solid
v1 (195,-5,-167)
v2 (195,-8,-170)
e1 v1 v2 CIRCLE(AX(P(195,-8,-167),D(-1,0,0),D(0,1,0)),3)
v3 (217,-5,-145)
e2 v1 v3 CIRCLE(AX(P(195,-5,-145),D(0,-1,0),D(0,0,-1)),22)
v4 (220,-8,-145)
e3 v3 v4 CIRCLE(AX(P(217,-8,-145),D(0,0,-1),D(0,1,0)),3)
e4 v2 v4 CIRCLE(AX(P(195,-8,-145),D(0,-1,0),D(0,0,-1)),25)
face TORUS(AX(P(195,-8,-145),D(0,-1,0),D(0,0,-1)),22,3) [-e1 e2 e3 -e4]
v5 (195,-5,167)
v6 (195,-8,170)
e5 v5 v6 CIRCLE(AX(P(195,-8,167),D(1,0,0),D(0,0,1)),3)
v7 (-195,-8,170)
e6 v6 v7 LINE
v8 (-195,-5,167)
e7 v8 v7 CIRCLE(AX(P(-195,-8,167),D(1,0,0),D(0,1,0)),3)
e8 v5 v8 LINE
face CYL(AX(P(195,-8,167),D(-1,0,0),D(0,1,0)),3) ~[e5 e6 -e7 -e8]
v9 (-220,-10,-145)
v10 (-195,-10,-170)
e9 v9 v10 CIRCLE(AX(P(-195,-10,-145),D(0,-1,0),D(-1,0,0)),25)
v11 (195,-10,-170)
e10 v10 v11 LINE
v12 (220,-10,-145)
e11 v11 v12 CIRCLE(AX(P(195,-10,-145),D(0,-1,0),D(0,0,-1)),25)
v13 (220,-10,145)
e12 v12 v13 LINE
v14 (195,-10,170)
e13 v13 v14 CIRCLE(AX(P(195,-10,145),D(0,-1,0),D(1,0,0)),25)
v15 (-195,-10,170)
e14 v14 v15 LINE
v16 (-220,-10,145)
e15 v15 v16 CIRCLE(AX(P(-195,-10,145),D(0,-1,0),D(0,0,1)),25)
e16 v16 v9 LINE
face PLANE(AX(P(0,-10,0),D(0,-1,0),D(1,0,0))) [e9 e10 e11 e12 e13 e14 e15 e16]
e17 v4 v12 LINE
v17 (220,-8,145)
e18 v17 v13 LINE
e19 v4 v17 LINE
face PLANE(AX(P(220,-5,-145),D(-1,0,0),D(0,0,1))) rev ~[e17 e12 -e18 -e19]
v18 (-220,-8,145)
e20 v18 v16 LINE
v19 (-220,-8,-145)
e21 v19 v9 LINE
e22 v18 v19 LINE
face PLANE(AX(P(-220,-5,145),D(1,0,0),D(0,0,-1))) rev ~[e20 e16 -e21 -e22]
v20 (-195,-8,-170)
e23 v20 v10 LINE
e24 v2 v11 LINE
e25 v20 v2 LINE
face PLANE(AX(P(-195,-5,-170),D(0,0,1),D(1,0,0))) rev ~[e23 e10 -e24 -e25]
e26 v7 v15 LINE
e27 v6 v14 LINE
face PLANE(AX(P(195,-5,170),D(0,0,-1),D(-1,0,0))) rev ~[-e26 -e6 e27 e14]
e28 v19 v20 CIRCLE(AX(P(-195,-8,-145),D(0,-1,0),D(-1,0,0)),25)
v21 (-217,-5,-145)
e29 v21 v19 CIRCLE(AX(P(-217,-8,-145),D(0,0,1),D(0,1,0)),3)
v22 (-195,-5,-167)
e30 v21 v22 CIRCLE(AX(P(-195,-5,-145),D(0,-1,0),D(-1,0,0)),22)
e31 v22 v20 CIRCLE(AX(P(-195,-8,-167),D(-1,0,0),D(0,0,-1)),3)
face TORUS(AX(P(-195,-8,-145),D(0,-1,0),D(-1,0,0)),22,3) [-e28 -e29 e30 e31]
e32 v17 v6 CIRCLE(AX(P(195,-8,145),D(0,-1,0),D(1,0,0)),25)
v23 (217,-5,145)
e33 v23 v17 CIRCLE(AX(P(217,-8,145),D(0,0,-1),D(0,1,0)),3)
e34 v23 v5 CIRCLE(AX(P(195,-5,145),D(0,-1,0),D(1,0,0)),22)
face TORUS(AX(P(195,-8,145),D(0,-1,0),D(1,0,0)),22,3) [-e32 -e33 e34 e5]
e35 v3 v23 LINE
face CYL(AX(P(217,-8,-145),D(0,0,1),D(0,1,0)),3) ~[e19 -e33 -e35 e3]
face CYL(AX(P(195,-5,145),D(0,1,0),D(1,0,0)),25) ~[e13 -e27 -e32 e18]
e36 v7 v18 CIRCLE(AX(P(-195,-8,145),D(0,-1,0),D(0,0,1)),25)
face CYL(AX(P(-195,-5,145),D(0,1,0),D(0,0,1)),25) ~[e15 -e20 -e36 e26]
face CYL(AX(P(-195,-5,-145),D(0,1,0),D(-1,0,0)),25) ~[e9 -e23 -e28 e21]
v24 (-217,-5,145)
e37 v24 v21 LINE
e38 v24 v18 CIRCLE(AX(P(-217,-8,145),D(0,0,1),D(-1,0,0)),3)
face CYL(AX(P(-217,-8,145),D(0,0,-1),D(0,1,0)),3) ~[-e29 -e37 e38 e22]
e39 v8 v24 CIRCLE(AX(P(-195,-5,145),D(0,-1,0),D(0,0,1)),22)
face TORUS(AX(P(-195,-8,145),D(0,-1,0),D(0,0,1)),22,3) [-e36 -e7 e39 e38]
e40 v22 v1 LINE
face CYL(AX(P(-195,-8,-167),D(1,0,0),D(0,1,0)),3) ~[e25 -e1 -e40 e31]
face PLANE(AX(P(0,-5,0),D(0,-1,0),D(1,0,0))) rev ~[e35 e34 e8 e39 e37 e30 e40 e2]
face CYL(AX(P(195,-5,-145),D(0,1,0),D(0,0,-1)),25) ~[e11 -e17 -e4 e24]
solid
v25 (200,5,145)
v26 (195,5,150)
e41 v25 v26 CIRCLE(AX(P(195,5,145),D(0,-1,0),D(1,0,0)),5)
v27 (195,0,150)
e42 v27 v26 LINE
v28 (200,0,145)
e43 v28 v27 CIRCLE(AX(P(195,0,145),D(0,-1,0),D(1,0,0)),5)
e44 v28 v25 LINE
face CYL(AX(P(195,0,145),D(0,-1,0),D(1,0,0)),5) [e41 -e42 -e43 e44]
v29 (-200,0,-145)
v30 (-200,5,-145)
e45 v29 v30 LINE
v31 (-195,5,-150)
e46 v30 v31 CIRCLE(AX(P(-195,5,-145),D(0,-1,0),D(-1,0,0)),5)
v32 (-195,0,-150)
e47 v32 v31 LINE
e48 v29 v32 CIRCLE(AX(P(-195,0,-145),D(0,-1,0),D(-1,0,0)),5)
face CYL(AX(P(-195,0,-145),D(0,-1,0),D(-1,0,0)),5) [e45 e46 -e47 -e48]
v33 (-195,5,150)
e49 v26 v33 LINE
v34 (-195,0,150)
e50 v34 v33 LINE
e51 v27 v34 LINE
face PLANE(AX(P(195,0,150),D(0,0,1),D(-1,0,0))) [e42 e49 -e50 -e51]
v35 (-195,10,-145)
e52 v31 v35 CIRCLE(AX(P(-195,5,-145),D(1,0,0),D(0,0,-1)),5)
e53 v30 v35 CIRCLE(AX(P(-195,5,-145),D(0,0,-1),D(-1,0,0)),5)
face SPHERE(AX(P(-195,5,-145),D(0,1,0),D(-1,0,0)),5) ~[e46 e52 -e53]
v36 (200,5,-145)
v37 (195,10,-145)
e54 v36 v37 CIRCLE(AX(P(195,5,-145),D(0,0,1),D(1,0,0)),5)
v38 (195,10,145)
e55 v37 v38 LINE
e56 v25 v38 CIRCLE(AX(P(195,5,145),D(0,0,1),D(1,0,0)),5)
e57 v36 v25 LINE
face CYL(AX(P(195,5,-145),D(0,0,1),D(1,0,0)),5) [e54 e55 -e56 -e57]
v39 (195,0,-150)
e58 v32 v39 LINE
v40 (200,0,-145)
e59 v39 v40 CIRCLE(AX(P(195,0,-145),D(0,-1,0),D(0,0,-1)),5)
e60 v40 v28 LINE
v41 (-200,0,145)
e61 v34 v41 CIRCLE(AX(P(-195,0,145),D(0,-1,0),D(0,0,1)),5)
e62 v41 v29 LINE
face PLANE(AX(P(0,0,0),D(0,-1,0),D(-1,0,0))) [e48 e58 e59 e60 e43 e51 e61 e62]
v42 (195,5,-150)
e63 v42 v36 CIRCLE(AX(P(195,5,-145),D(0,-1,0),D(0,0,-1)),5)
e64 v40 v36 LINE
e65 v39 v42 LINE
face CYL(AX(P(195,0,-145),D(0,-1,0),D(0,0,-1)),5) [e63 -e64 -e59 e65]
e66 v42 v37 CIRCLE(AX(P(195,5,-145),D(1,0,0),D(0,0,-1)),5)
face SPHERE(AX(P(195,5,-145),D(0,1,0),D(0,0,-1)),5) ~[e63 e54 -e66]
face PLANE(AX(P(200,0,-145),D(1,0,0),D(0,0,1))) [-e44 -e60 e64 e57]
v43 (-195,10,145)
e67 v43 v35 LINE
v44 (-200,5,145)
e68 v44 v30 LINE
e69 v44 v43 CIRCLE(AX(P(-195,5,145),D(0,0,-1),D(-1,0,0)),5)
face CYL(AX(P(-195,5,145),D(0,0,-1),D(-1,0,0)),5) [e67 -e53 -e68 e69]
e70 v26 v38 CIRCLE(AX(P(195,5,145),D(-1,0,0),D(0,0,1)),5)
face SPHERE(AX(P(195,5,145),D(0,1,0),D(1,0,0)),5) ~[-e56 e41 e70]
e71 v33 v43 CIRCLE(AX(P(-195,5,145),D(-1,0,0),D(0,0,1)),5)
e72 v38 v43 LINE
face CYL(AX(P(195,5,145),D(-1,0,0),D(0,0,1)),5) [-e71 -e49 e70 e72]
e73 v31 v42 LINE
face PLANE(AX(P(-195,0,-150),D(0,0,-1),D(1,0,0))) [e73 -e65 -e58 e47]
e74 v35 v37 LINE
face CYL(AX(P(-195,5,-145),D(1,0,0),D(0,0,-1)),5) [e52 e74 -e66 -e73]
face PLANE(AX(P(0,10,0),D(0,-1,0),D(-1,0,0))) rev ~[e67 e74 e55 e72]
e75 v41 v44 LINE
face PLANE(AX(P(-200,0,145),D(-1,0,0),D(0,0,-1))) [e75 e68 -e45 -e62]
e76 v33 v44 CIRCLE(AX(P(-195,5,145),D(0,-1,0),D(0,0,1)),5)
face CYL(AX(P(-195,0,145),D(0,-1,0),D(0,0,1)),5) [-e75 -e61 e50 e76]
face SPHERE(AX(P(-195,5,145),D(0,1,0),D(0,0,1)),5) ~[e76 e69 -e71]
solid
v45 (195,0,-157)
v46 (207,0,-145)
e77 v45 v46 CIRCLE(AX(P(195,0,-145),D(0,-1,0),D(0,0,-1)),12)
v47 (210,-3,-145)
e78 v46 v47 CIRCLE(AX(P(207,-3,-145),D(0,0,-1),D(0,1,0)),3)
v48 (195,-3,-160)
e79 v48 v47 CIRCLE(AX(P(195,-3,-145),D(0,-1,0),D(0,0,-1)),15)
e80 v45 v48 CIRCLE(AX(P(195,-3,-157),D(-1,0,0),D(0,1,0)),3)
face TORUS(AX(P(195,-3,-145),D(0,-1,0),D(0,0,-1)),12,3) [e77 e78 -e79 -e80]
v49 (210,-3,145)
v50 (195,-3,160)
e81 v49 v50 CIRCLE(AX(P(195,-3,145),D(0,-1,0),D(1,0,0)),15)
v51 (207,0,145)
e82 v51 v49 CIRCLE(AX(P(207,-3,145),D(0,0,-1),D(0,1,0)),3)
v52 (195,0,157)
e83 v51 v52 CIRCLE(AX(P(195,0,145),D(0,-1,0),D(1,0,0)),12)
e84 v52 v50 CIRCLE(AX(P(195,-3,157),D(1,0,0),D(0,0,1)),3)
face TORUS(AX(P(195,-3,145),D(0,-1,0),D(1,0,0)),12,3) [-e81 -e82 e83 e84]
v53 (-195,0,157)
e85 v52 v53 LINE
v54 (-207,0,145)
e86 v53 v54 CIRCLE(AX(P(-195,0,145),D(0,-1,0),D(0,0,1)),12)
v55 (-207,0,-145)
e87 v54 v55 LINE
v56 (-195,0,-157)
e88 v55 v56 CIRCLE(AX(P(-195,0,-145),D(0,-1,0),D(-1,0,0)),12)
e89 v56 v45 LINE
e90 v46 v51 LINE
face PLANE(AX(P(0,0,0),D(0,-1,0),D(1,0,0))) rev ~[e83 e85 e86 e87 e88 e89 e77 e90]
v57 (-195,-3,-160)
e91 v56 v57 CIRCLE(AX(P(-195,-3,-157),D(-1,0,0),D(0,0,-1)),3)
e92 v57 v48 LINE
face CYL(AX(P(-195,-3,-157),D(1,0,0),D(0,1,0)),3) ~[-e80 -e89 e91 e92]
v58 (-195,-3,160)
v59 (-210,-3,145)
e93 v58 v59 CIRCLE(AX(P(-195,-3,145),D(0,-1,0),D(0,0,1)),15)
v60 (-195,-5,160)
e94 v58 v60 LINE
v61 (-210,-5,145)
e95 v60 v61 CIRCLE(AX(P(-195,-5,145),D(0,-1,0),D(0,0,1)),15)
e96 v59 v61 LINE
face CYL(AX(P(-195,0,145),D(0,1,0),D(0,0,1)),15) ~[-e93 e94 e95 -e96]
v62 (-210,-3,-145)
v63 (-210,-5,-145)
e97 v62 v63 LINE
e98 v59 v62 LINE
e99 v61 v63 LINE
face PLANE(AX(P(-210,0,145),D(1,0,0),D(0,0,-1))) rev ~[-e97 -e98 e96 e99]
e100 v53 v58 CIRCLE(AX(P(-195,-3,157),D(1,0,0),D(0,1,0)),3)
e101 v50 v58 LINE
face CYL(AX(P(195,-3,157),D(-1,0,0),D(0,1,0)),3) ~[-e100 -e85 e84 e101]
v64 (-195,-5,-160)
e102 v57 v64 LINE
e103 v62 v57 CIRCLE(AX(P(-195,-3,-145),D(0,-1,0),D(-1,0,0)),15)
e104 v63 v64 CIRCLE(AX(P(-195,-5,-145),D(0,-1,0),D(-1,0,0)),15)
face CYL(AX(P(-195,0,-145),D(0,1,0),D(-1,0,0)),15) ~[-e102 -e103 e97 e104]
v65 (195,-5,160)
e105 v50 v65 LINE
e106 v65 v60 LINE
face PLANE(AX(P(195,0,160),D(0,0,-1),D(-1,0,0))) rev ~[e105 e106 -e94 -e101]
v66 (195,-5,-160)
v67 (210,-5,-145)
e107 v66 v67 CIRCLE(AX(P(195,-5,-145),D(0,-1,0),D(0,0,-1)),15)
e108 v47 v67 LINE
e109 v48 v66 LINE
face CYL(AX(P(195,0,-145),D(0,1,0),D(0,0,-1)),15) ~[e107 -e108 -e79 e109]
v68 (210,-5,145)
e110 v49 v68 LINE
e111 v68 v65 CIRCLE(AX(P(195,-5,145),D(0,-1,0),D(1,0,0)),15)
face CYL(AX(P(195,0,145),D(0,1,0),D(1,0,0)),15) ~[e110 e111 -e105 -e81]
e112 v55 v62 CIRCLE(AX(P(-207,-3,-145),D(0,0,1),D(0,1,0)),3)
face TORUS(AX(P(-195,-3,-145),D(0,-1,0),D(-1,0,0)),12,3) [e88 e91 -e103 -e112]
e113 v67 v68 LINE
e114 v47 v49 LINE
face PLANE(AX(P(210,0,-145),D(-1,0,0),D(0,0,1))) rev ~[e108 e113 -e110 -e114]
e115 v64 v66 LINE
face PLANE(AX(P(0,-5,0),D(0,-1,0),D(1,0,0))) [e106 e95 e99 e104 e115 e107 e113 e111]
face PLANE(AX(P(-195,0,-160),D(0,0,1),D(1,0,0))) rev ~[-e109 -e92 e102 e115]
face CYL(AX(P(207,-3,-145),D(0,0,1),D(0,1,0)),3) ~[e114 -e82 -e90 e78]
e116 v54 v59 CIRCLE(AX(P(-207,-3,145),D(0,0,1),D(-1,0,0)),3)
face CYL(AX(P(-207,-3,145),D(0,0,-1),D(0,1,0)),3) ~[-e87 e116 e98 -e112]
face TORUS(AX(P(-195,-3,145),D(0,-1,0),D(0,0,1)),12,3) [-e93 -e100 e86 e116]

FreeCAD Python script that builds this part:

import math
import FreeCAD as App
import Part
import Sketcher

V = App.Vector
Q = App.Units.Quantity


def edges_at(feature, points):
    """Names of the edges that pass closest to the given points."""
    edges = feature.Shape.Edges
    near = lambda p: min(range(len(edges)), key=lambda i: edges[i].distToShape(Part.Vertex(*p))[0])
    return sorted({f"Edge{near(p) + 1}" for p in points})

doc = App.newDocument("Part")
body = doc.addObject("PartDesign::Body", "Body")

# Sketch on XZ plane
sketch1 = doc.addObject("Sketcher::SketchObject", "Sketch")
body.addObject(sketch1)
sketch1.AttachmentSupport = (doc.XZ_Plane, [""])
sketch1.MapMode = "FlatFace"
sketch1.addGeometry(Part.LineSegment(V(-195, 150, 0), V(195, 150, 0)), False)
sketch1.addGeometry(Part.ArcOfCircle(Part.Circle(V(195, 145, 0), V(0, 0, 1), 5), math.radians(0), math.radians(90)), False)
sketch1.addGeometry(Part.LineSegment(V(200, 145, 0), V(200, -145, 0)), False)
sketch1.addGeometry(Part.ArcOfCircle(Part.Circle(V(195, -145, 0), V(0, 0, 1), 5), math.radians(-90), math.radians(0)), False)
sketch1.addGeometry(Part.LineSegment(V(195, -150, 0), V(-195, -150, 0)), False)
sketch1.addGeometry(Part.ArcOfCircle(Part.Circle(V(-195, -145, 0), V(0, 0, 1), 5), math.radians(180), math.radians(270)), False)
sketch1.addGeometry(Part.LineSegment(V(-200, -145, 0), V(-200, 145, 0)), False)
sketch1.addGeometry(Part.ArcOfCircle(Part.Circle(V(-195, 145, 0), V(0, 0, 1), 5), math.radians(90), math.radians(180)), False)
sketch1.addConstraint(Sketcher.Constraint("Tangent", 0, 2, 1, 2))
sketch1.addConstraint(Sketcher.Constraint("Tangent", 1, 1, 2, 1))
sketch1.addConstraint(Sketcher.Constraint("Tangent", 2, 2, 3, 2))
sketch1.addConstraint(Sketcher.Constraint("Tangent", 3, 1, 4, 1))
sketch1.addConstraint(Sketcher.Constraint("Tangent", 4, 2, 5, 2))
sketch1.addConstraint(Sketcher.Constraint("Tangent", 5, 1, 6, 1))
sketch1.addConstraint(Sketcher.Constraint("Tangent", 6, 2, 7, 2))
sketch1.addConstraint(Sketcher.Constraint("Tangent", 7, 1, 0, 1))
sketch1.addConstraint(Sketcher.Constraint("Horizontal", 0))
sketch1.addConstraint(Sketcher.Constraint("Vertical", 2))
sketch1.addConstraint(Sketcher.Constraint("Horizontal", 4))
sketch1.addConstraint(Sketcher.Constraint("Vertical", 6))
sketch1.addConstraint(Sketcher.Constraint("Equal", 1, 3))
sketch1.addConstraint(Sketcher.Constraint("Equal", 3, 5))
sketch1.addConstraint(Sketcher.Constraint("Equal", 5, 7))
sketch1.addConstraint(Sketcher.Constraint("Symmetric", 1, 3, 5, 3, -1, 1))
sketch1.addConstraint(Sketcher.Constraint("Radius", 1, Q("5 mm")))
sketch1.addConstraint(Sketcher.Constraint("DistanceX", 0, 1, 0, 2, Q("390 mm")))
sketch1.addConstraint(Sketcher.Constraint("DistanceY", 2, 2, 2, 1, Q("290 mm")))
pad1 = doc.addObject("PartDesign::Pad", "Pad")
body.addObject(pad1)
pad1.Profile = sketch1
pad1.Length = 10
pad1.Reversed = True
doc.recompute()

fillet = doc.addObject("PartDesign::Fillet", "Fillet")
body.addObject(fillet)
fillet.Base = (pad1, edges_at(pad1, [
    (198.536, 10, 148.536),
    (200, 10, 0),
    (198.536, 10, -148.536),
    (0, 10, -150),
    (-198.536, 10, -148.536),
    (-200, 10, 0),
    (-198.536, 10, 148.536),
    (0, 10, 150),
]))
fillet.Radius = 5
body2 = doc.addObject("PartDesign::Body", "Body001")

# Sketch on XZ plane
sketch2 = doc.addObject("Sketcher::SketchObject", "Sketch001")
body2.addObject(sketch2)
sketch2.AttachmentSupport = (doc.getObject("XZ_Plane001"), [""])
sketch2.MapMode = "FlatFace"
sketch2.addGeometry(Part.LineSegment(V(195, 160, 0), V(-195, 160, 0)), False)
sketch2.addGeometry(Part.ArcOfCircle(Part.Circle(V(-195, 145, 0), V(0, 0, 1), 15), math.radians(90), math.radians(180)), False)
sketch2.addGeometry(Part.LineSegment(V(-210, 145, 0), V(-210, -145, 0)), False)
sketch2.addGeometry(Part.ArcOfCircle(Part.Circle(V(-195, -145, 0), V(0, 0, 1), 15), math.radians(180), math.radians(270)), False)
sketch2.addGeometry(Part.LineSegment(V(-195, -160, 0), V(195, -160, 0)), False)
sketch2.addGeometry(Part.ArcOfCircle(Part.Circle(V(195, -145, 0), V(0, 0, 1), 15), math.radians(-90), math.radians(0)), False)
sketch2.addGeometry(Part.LineSegment(V(210, -145, 0), V(210, 145, 0)), False)
sketch2.addGeometry(Part.ArcOfCircle(Part.Circle(V(195, 145, 0), V(0, 0, 1), 15), math.radians(0), math.radians(90)), False)
sketch2.addConstraint(Sketcher.Constraint("Tangent", 0, 2, 1, 1))
sketch2.addConstraint(Sketcher.Constraint("Tangent", 1, 2, 2, 1))
sketch2.addConstraint(Sketcher.Constraint("Tangent", 2, 2, 3, 1))
sketch2.addConstraint(Sketcher.Constraint("Tangent", 3, 2, 4, 1))
sketch2.addConstraint(Sketcher.Constraint("Tangent", 4, 2, 5, 1))
sketch2.addConstraint(Sketcher.Constraint("Tangent", 5, 2, 6, 1))
sketch2.addConstraint(Sketcher.Constraint("Tangent", 6, 2, 7, 1))
sketch2.addConstraint(Sketcher.Constraint("Tangent", 7, 2, 0, 1))
sketch2.addConstraint(Sketcher.Constraint("Horizontal", 0))
sketch2.addConstraint(Sketcher.Constraint("Vertical", 2))
sketch2.addConstraint(Sketcher.Constraint("Horizontal", 4))
sketch2.addConstraint(Sketcher.Constraint("Vertical", 6))
sketch2.addConstraint(Sketcher.Constraint("Equal", 1, 3))
sketch2.addConstraint(Sketcher.Constraint("Equal", 3, 5))
sketch2.addConstraint(Sketcher.Constraint("Equal", 5, 7))
sketch2.addConstraint(Sketcher.Constraint("Symmetric", 1, 3, 5, 3, -1, 1))
sketch2.addConstraint(Sketcher.Constraint("Radius", 1, Q("15 mm")))
sketch2.addConstraint(Sketcher.Constraint("DistanceX", 0, 2, 0, 1, Q("390 mm")))
sketch2.addConstraint(Sketcher.Constraint("DistanceY", 2, 2, 2, 1, Q("290 mm")))
pad2 = doc.addObject("PartDesign::Pad", "Pad001")
body2.addObject(pad2)
pad2.Profile = sketch2
pad2.Length = 5
doc.recompute()

fillet2 = doc.addObject("PartDesign::Fillet", "Fillet001")
body2.addObject(fillet2)
fillet2.Base = (pad2, edges_at(pad2, [
    (210, 0, 0),
    (205.607, 0, -155.607),
    (0, 0, -160),
    (-205.607, 0, -155.607),
    (-210, 0, 0),
    (-205.607, 0, 155.607),
    (0, 0, 160),
    (205.607, 0, 155.607),
]))
fillet2.Radius = 3
body3 = doc.addObject("PartDesign::Body", "Body002")

# Sketch on XZ plane
sketch3 = doc.addObject("Sketcher::SketchObject", "Sketch002")
body3.addObject(sketch3)
sketch3.AttachmentSupport = (doc.getObject("XZ_Plane002"), [""])
sketch3.MapMode = "FlatFace"
sketch3.AttachmentOffset = App.Placement(V(0, 0, 5), App.Rotation())
sketch3.addGeometry(Part.LineSegment(V(195, 170, 0), V(-195, 170, 0)), False)
sketch3.addGeometry(Part.ArcOfCircle(Part.Circle(V(-195, 145, 0), V(0, 0, 1), 25), math.radians(90), math.radians(180)), False)
sketch3.addGeometry(Part.LineSegment(V(-220, 145, 0), V(-220, -145, 0)), False)
sketch3.addGeometry(Part.ArcOfCircle(Part.Circle(V(-195, -145, 0), V(0, 0, 1), 25), math.radians(180), math.radians(270)), False)
sketch3.addGeometry(Part.LineSegment(V(-195, -170, 0), V(195, -170, 0)), False)
sketch3.addGeometry(Part.ArcOfCircle(Part.Circle(V(195, -145, 0), V(0, 0, 1), 25), math.radians(-90), math.radians(0)), False)
sketch3.addGeometry(Part.LineSegment(V(220, -145, 0), V(220, 145, 0)), False)
sketch3.addGeometry(Part.ArcOfCircle(Part.Circle(V(195, 145, 0), V(0, 0, 1), 25), math.radians(0), math.radians(90)), False)
sketch3.addConstraint(Sketcher.Constraint("Tangent", 0, 2, 1, 1))
sketch3.addConstraint(Sketcher.Constraint("Tangent", 1, 2, 2, 1))
sketch3.addConstraint(Sketcher.Constraint("Tangent", 2, 2, 3, 1))
sketch3.addConstraint(Sketcher.Constraint("Tangent", 3, 2, 4, 1))
sketch3.addConstraint(Sketcher.Constraint("Tangent", 4, 2, 5, 1))
sketch3.addConstraint(Sketcher.Constraint("Tangent", 5, 2, 6, 1))
sketch3.addConstraint(Sketcher.Constraint("Tangent", 6, 2, 7, 1))
sketch3.addConstraint(Sketcher.Constraint("Tangent", 7, 2, 0, 1))
sketch3.addConstraint(Sketcher.Constraint("Horizontal", 0))
sketch3.addConstraint(Sketcher.Constraint("Vertical", 2))
sketch3.addConstraint(Sketcher.Constraint("Horizontal", 4))
sketch3.addConstraint(Sketcher.Constraint("Vertical", 6))
sketch3.addConstraint(Sketcher.Constraint("Equal", 1, 3))
sketch3.addConstraint(Sketcher.Constraint("Equal", 3, 5))
sketch3.addConstraint(Sketcher.Constraint("Equal", 5, 7))
sketch3.addConstraint(Sketcher.Constraint("Symmetric", 1, 3, 5, 3, -1, 1))
sketch3.addConstraint(Sketcher.Constraint("Radius", 1, Q("25 mm")))
sketch3.addConstraint(Sketcher.Constraint("DistanceX", 0, 2, 0, 1, Q("390 mm")))
sketch3.addConstraint(Sketcher.Constraint("DistanceY", 2, 2, 2, 1, Q("290 mm")))
pad3 = doc.addObject("PartDesign::Pad", "Pad002")
body3.addObject(pad3)
pad3.Profile = sketch3
pad3.Length = 5
doc.recompute()

fillet3 = doc.addObject("PartDesign::Fillet", "Fillet002")
body3.addObject(fillet3)
fillet3.Base = (pad3, edges_at(pad3, [
    (220, -5, 0),
    (212.678, -5, -162.678),
    (0, -5, -170),
    (-212.678, -5, -162.678),
    (-220, -5, 0),
    (-212.678, -5, 162.678),
    (0, -5, 170),
    (212.678, -5, 162.678),
]))
fillet3.Radius = 3

doc.recompute()
